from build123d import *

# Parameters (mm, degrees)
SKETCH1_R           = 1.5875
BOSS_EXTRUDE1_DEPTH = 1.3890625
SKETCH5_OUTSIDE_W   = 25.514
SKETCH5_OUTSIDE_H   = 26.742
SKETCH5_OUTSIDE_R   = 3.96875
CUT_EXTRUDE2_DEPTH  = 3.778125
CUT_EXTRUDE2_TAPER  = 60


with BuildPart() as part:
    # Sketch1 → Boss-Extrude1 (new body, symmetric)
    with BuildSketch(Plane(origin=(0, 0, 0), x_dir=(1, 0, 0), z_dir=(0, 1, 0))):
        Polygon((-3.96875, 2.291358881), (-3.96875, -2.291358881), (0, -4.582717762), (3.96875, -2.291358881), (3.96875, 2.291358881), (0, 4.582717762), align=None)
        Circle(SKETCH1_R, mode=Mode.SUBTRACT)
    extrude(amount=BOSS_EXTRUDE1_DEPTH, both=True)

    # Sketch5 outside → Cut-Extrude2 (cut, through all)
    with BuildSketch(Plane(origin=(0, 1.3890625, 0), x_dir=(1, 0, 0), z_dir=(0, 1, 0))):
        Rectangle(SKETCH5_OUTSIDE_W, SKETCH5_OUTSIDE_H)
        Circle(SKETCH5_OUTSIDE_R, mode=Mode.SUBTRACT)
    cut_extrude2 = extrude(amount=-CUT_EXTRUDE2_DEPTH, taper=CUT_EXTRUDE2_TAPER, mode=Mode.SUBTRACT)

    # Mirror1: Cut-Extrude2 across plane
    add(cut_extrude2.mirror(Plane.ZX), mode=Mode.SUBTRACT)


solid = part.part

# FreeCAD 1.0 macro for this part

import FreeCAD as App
import Part
import Sketcher

V = App.Vector
Q = App.Units.Quantity

doc = App.newDocument("Part")
body = doc.addObject("PartDesign::Body", "Body")

sketch1 = doc.addObject("Sketcher::SketchObject", "Sketch")
body.addObject(sketch1)
sketch1.AttachmentSupport = (doc.XZ_Plane, [""])
sketch1.MapMode = "FlatFace"
sketch1.addGeometry(Part.LineSegment(V(-4, -2.3, 0), V(-4, 2.3, 0)), False)
sketch1.addGeometry(Part.LineSegment(V(-4, 2.3, 0), V(0, 4.6, 0)), False)
sketch1.addGeometry(Part.LineSegment(V(0, 4.6, 0), V(4, 2.3, 0)), False)
sketch1.addGeometry(Part.LineSegment(V(4, 2.3, 0), V(4, -2.3, 0)), False)
sketch1.addGeometry(Part.LineSegment(V(4, -2.3, 0), V(0, -4.6, 0)), False)
sketch1.addGeometry(Part.LineSegment(V(0, -4.6, 0), V(-4, -2.3, 0)), False)
sketch1.addGeometry(Part.Circle(V(0, 0, 0), V(0, 0, 1), 1.6), False)
sketch1.addConstraint(Sketcher.Constraint("Coincident", 0, 2, 1, 1))
sketch1.addConstraint(Sketcher.Constraint("Coincident", 1, 2, 2, 1))
sketch1.addConstraint(Sketcher.Constraint("Coincident", 2, 2, 3, 1))
sketch1.addConstraint(Sketcher.Constraint("Coincident", 3, 2, 4, 1))
sketch1.addConstraint(Sketcher.Constraint("Coincident", 4, 2, 5, 1))
sketch1.addConstraint(Sketcher.Constraint("Coincident", 5, 2, 0, 1))
sketch1.addConstraint(Sketcher.Constraint("Vertical", 0))
sketch1.addConstraint(Sketcher.Constraint("Vertical", 3))
sketch1.addConstraint(Sketcher.Constraint("Coincident", 6, 3, -1, 1))
sketch1.addConstraint(Sketcher.Constraint("Symmetric", 0, 2, 3, 2, -1, 1))
sketch1.addConstraint(Sketcher.Constraint("Symmetric", 1, 2, 4, 2, -1, 1))
sketch1.addConstraint(Sketcher.Constraint("PointOnObject", 1, 2, -2))
sketch1.addConstraint(Sketcher.Constraint("Parallel", 2, 5))
sketch1.addConstraint(Sketcher.Constraint("Horizontal", 0, 2, 2, 2))
sketch1.addConstraint(Sketcher.Constraint("Diameter", 6, Q("0.125 in")))
sketch1.addConstraint(Sketcher.Constraint("Angle", 1, Q("30 deg")))
sketch1.addConstraint(Sketcher.Constraint("DistanceX", 0, 2, -1, 1, Q("0.15625 in")))
sketch1.addConstraint(Sketcher.Constraint("DistanceY", 0, 1, 0, 2, 4.582718))
pad1 = doc.addObject("PartDesign::Pad", "Pad")
body.addObject(pad1)
pad1.Profile = sketch1
pad1.Length = Q("0.109375 in")
pad1.Midplane = True

sketch2 = doc.addObject("Sketcher::SketchObject", "Sketch001")
body.addObject(sketch2)
sketch2.AttachmentSupport = (doc.XZ_Plane, [""])
sketch2.MapMode = "FlatFace"
sketch2.AttachmentOffset = App.Placement(V(0, 0, -1.389063), App.Rotation())
sketch2.addGeometry(Part.LineSegment(V(-12.8, -13.4, 0), V(-12.8, 13.4, 0)), False)
sketch2.addGeometry(Part.LineSegment(V(-12.8, 13.4, 0), V(12.8, 13.4, 0)), False)
sketch2.addGeometry(Part.LineSegment(V(12.8, 13.4, 0), V(12.8, -13.4, 0)), False)
sketch2.addGeometry(Part.LineSegment(V(12.8, -13.4, 0), V(-12.8, -13.4, 0)), False)
sketch2.addGeometry(Part.Circle(V(0, 0, 0), V(0, 0, 1), 4), False)
sketch2.addConstraint(Sketcher.Constraint("Coincident", 0, 2, 1, 1))
sketch2.addConstraint(Sketcher.Constraint("Coincident", 1, 2, 2, 1))
sketch2.addConstraint(Sketcher.Constraint("Coincident", 2, 2, 3, 1))
sketch2.addConstraint(Sketcher.Constraint("Coincident", 3, 2, 0, 1))
sketch2.addConstraint(Sketcher.Constraint("Vertical", 0))
sketch2.addConstraint(Sketcher.Constraint("Horizontal", 1))
sketch2.addConstraint(Sketcher.Constraint("Vertical", 2))
sketch2.addConstraint(Sketcher.Constraint("Horizontal", 3))
sketch2.addConstraint(Sketcher.Constraint("Coincident", 4, 3, -1, 1))
sketch2.addConstraint(Sketcher.Constraint("Symmetric", 0, 2, 2, 2, -1, 1))
sketch2.addConstraint(Sketcher.Constraint("Diameter", 4, Q("0.3125 in")))
sketch2.addConstraint(Sketcher.Constraint("DistanceX", 1, 1, 1, 2, 25.514))
sketch2.addConstraint(Sketcher.Constraint("DistanceY", 0, 1, 0, 2, 26.742))
pocket1 = doc.addObject("PartDesign::Pocket", "Pocket")
body.addObject(pocket1)
pocket1.Profile = sketch2
pocket1.Length = 3.778125
pocket1.Reversed = True
pocket1.TaperAngle = 60
doc.recompute()

mirrored = doc.addObject("PartDesign::Mirrored", "Mirrored")
body.addObject(mirrored)
mirrored.Originals = [pocket1]
mirrored.MirrorPlane = (doc.XZ_Plane, [""])
body.Tip = mirrored

doc.recompute()
